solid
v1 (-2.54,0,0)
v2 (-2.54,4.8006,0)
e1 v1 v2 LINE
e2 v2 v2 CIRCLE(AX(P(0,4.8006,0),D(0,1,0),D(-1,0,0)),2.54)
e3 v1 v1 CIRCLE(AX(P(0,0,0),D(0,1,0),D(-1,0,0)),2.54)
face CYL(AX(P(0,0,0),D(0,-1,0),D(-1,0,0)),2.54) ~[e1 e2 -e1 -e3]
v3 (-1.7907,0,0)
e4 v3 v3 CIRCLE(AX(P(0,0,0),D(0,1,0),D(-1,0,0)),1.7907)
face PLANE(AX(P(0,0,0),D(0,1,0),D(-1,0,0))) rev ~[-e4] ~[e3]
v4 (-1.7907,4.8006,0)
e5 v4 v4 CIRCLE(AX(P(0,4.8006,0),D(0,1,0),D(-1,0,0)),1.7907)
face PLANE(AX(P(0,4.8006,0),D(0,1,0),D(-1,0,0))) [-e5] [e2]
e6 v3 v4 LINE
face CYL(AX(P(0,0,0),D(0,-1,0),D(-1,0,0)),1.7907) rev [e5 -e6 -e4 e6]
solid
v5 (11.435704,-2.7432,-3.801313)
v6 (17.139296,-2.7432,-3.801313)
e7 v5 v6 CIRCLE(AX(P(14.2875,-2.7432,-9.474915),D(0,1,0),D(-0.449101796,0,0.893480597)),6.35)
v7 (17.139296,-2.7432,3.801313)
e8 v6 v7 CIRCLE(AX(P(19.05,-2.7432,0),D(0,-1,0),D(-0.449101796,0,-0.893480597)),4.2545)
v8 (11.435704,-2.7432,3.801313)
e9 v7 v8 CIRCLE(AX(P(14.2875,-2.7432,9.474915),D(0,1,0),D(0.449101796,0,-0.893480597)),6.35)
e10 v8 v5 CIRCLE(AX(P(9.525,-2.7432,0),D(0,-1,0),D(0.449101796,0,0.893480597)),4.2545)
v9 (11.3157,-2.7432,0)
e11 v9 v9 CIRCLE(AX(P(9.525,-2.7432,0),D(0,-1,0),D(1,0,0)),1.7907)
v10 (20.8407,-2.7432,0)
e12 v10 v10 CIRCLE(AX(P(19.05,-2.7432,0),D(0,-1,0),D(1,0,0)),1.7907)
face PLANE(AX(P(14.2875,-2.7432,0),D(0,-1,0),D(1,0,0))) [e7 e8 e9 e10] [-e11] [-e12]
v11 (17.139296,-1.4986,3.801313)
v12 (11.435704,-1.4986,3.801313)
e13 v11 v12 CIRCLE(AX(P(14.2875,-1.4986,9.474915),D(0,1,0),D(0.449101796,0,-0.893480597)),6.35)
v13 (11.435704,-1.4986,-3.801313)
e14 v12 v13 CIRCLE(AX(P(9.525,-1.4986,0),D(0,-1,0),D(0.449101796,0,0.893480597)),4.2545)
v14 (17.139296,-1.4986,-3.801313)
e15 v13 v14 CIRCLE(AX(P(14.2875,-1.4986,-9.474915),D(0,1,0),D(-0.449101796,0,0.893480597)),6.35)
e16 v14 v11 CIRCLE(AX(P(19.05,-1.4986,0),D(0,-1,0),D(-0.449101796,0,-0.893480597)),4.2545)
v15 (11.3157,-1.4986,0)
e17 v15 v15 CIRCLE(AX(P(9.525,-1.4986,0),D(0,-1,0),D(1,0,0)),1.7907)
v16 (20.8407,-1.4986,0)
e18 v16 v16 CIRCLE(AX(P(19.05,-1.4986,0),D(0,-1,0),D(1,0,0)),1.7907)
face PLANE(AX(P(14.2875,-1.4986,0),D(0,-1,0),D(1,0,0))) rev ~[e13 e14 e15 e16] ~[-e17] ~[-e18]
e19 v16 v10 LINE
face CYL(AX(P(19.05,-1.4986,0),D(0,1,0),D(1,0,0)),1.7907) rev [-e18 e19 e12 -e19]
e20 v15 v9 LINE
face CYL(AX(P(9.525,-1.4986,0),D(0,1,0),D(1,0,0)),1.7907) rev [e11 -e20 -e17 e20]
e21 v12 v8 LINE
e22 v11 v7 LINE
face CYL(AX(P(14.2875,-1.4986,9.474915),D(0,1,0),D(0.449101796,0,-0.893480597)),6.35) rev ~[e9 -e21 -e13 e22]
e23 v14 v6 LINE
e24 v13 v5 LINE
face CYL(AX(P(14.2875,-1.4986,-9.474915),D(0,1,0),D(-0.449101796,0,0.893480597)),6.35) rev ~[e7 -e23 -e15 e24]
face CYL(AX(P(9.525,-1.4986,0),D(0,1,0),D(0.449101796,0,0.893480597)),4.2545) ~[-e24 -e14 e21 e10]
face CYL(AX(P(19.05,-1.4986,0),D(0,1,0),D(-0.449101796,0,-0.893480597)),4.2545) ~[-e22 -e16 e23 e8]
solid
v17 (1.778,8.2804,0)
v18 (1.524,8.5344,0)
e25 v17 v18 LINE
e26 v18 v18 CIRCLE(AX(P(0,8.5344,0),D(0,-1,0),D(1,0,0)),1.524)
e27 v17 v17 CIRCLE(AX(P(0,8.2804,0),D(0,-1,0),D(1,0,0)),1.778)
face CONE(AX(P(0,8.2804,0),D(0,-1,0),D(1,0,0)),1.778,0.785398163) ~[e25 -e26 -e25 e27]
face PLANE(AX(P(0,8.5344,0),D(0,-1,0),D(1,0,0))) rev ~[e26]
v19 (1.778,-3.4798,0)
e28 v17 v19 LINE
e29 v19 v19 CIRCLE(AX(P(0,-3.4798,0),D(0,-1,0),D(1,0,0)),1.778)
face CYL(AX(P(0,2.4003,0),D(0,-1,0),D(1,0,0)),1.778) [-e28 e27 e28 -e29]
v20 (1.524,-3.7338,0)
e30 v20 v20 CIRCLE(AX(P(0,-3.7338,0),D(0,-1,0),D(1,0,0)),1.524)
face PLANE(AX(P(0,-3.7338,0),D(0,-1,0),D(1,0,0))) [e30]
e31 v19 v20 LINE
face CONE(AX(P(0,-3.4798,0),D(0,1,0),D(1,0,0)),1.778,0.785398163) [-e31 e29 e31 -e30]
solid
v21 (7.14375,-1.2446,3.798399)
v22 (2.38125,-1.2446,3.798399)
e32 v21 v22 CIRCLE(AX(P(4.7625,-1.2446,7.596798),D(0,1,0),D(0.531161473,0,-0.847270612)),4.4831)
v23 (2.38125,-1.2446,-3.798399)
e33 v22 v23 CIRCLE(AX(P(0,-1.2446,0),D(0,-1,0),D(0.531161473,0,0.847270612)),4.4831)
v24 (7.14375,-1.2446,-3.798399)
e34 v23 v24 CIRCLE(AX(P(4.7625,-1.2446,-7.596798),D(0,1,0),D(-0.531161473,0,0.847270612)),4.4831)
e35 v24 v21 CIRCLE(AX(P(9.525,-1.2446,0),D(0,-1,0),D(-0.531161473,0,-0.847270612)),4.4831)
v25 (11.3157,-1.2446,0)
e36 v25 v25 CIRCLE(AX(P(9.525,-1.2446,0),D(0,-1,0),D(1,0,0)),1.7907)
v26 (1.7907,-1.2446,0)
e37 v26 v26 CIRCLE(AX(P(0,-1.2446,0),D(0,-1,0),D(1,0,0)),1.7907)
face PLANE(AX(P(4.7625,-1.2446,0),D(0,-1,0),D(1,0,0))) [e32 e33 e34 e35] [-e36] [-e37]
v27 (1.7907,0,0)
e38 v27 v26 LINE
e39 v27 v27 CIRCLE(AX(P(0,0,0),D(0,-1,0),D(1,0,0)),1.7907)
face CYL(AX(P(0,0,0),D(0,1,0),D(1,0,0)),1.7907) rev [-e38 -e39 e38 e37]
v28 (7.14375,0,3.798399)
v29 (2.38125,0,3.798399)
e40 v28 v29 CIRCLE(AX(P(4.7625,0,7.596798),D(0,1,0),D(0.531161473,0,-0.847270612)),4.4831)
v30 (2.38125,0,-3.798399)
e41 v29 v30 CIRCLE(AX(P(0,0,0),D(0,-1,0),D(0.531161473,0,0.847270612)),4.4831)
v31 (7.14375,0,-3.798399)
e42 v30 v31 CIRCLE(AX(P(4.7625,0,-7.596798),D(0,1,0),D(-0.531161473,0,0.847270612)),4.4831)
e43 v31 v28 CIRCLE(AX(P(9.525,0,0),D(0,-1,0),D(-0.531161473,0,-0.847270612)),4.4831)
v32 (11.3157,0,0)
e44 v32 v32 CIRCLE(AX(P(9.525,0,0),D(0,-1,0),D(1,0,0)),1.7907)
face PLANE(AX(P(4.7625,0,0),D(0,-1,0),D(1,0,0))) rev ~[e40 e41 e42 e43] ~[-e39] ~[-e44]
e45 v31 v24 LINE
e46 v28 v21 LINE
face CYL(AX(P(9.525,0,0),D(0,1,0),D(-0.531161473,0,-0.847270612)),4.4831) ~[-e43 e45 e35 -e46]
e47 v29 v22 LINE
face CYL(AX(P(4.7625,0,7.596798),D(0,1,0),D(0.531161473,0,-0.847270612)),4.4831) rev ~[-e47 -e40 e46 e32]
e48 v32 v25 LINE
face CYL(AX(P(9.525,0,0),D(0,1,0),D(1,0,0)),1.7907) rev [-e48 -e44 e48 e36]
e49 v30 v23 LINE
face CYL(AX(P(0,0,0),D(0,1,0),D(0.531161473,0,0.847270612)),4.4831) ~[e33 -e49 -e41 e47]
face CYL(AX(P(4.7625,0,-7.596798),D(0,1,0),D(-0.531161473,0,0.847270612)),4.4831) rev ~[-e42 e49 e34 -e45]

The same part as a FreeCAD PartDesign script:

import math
import FreeCAD as App
import Part
import Sketcher
Q = App.Units.Quantity


def edges_at(feature, points):
    """Names of the edges that pass closest to the given points."""
    edges = feature.Shape.Edges
    near = lambda p: min(range(len(edges)), key=lambda i: edges[i].distToShape(Part.Vertex(*p))[0])
    return sorted({f"Edge{near(p) + 1}" for p in points})

doc = App.newDocument("Part")
body = doc.addObject("PartDesign::Body", "Body")

sketch1 = body.newObject("Sketcher::SketchObject", "Sketch")
sketch1.AttachmentSupport = (doc.getObject("XZ_Plane"), [""])
sketch1.MapMode = "FlatFace"
sketch1.addGeometry(Part.ArcOfCircle(Part.Circle(App.Vector(4.8, 7.6, 0), App.Vector(0, 0, 1), 4.5), math.radians(-122), math.radians(-58)), False)
sketch1.addGeometry(Part.ArcOfCircle(Part.Circle(App.Vector(0, 0, 0), App.Vector(0, 0, 1), 4.5), math.radians(58), math.radians(302)), False)
sketch1.addGeometry(Part.ArcOfCircle(Part.Circle(App.Vector(4.8, -7.6, 0), App.Vector(0, 0, 1), 4.5), math.radians(58), math.radians(122)), False)
sketch1.addGeometry(Part.ArcOfCircle(Part.Circle(App.Vector(9.5, 0, 0), App.Vector(0, 0, 1), 4.5), math.radians(-122), math.radians(122)), False)
sketch1.addGeometry(Part.Circle(App.Vector(0, 0, 0), App.Vector(0, 0, 1), 1.8), False)
sketch1.addGeometry(Part.Circle(App.Vector(9.5, 0, 0), App.Vector(0, 0, 1), 1.8), False)
sketch1.addConstraint(Sketcher.Constraint("Tangent", 0, 1, 1, 1))
sketch1.addConstraint(Sketcher.Constraint("Tangent", 1, 2, 2, 2))
sketch1.addConstraint(Sketcher.Constraint("Tangent", 2, 1, 3, 1))
sketch1.addConstraint(Sketcher.Constraint("Tangent", 3, 2, 0, 2))
sketch1.addConstraint(Sketcher.Constraint("Coincident", 1, 3, -1, 1))
sketch1.addConstraint(Sketcher.Constraint("Coincident", 4, 3, -1, 1))
sketch1.addConstraint(Sketcher.Constraint("Coincident", 5, 3, 3, 3))
sketch1.addConstraint(Sketcher.Constraint("Equal", 0, 1))
sketch1.addConstraint(Sketcher.Constraint("Equal", 1, 2))
sketch1.addConstraint(Sketcher.Constraint("Equal", 2, 3))
sketch1.addConstraint(Sketcher.Constraint("Equal", 4, 5))
sketch1.addConstraint(Sketcher.Constraint("PointOnObject", 3, 3, -1))
sketch1.addConstraint(Sketcher.Constraint("Diameter", 4, Q("0.141 in")))
sketch1.addConstraint(Sketcher.Constraint("Radius", 0, Q("0.1765 in")))
sketch1.addConstraint(Sketcher.Constraint("DistanceX", -1, 1, 0, 3, Q("0.1875 in")))
pad1 = body.newObject("PartDesign::Pad", "Pad")
pad1.Profile = sketch1
pad1.Length = Q("0.049 in")
body2 = doc.addObject("PartDesign::Body", "Body001")

sketch2 = body2.newObject("Sketcher::SketchObject", "Sketch001")
sketch2.AttachmentSupport = (doc.getObject("XZ_Plane001"), [""])
sketch2.MapMode = "FlatFace"
sketch2.addGeometry(Part.Circle(App.Vector(0, 0, 0), App.Vector(0, 0, 1), 2.5), False)
sketch2.addGeometry(Part.Circle(App.Vector(0, 0, 0), App.Vector(0, 0, 1), 1.8), False)
sketch2.addConstraint(Sketcher.Constraint("Coincident", 0, 3, -1, 1))
sketch2.addConstraint(Sketcher.Constraint("Coincident", 1, 3, -1, 1))
sketch2.addConstraint(Sketcher.Constraint("Diameter", 0, Q("0.2 in")))
sketch2.addConstraint(Sketcher.Constraint("Diameter", 1, Q("0.141 in")))
pad2 = body2.newObject("PartDesign::Pad", "Pad001")
pad2.Profile = sketch2
pad2.Length = Q("0.189 in")
pad2.Reversed = True
body3 = doc.addObject("PartDesign::Body", "Body002")

sketch3 = body3.newObject("Sketcher::SketchObject", "Sketch002")
sketch3.AttachmentSupport = (doc.getObject("XZ_Plane002"), [""])
sketch3.MapMode = "FlatFace"
sketch3.AttachmentOffset = App.Placement(App.Vector(0, 0, -0.0945 * 25.4), App.Rotation())
sketch3.addGeometry(Part.Circle(App.Vector(0, 0, 0), App.Vector(0, 0, 1), 1.8), False)
sketch3.addConstraint(Sketcher.Constraint("Coincident", 0, 3, -1, 1))
sketch3.addConstraint(Sketcher.Constraint("Diameter", 0, Q("0.14 in")))
pad3 = body3.newObject("PartDesign::Pad", "Pad002")
pad3.Profile = sketch3
pad3.Length = Q("0.483 in")
pad3.Midplane = True
doc.recompute()

chamfer = body3.newObject("PartDesign::Chamfer", "Chamfer")
chamfer.Base = (pad3, edges_at(pad3, [(-1.778, -3.734, 0), (-1.778, 8.534, 0)]))
chamfer.Size = Q("0.01 in")
body4 = doc.addObject("PartDesign::Body", "Body003")

sketch4 = body4.newObject("Sketcher::SketchObject", "Sketch003")
sketch4.AttachmentSupport = (doc.getObject("XZ_Plane003"), [""])
sketch4.MapMode = "FlatFace"
sketch4.AttachmentOffset = App.Placement(App.Vector(0, 0, 0.059 * 25.4), App.Rotation())
sketch4.addGeometry(Part.ArcOfCircle(Part.Circle(App.Vector(14.3, 9.5, 0), App.Vector(0, 0, 1), 6.3), math.radians(-117), math.radians(-63)), False)
sketch4.addGeometry(Part.ArcOfCircle(Part.Circle(App.Vector(9.5, 0, 0), App.Vector(0, 0, 1), 4.3), math.radians(63), math.radians(297)), False)
sketch4.addGeometry(Part.ArcOfCircle(Part.Circle(App.Vector(14.3, -9.5, 0), App.Vector(0, 0, 1), 6.3), math.radians(63), math.radians(117)), False)
sketch4.addGeometry(Part.ArcOfCircle(Part.Circle(App.Vector(19.1, 0, 0), App.Vector(0, 0, 1), 4.3), math.radians(-117), math.radians(117)), False)
sketch4.addGeometry(Part.Circle(App.Vector(9.5, 0, 0), App.Vector(0, 0, 1), 1.8), False)
sketch4.addGeometry(Part.Circle(App.Vector(19.1, 0, 0), App.Vector(0, 0, 1), 1.8), False)
sketch4.addConstraint(Sketcher.Constraint("Tangent", 0, 1, 1, 1))
sketch4.addConstraint(Sketcher.Constraint("Tangent", 1, 2, 2, 2))
sketch4.addConstraint(Sketcher.Constraint("Tangent", 2, 1, 3, 1))
sketch4.addConstraint(Sketcher.Constraint("Tangent", 3, 2, 0, 2))
sketch4.addConstraint(Sketcher.Constraint("Coincident", 4, 3, 1, 3))
sketch4.addConstraint(Sketcher.Constraint("Coincident", 5, 3, 3, 3))
sketch4.addConstraint(Sketcher.Constraint("Equal", 0, 2))
sketch4.addConstraint(Sketcher.Constraint("Equal", 1, 3))
sketch4.addConstraint(Sketcher.Constraint("Equal", 4, 5))
sketch4.addConstraint(Sketcher.Constraint("Symmetric", 0, 3, 2, 3, -1))
sketch4.addConstraint(Sketcher.Constraint("Radius", 0, Q("0.25 in")))
sketch4.addConstraint(Sketcher.Constraint("Diameter", 4, Q("0.141 in")))
sketch4.addConstraint(Sketcher.Constraint("Radius", 1, Q("0.1675 in")))
sketch4.addConstraint(Sketcher.Constraint("DistanceX", -1, 1, 3, 3, Q("0.75 in")))
sketch4.addConstraint(Sketcher.Constraint("DistanceX", -1, 1, 0, 3, Q("0.5625 in")))
pad4 = body4.newObject("PartDesign::Pad", "Pad003")
pad4.Profile = sketch4
pad4.Length = Q("0.049 in")

doc.recompute()
